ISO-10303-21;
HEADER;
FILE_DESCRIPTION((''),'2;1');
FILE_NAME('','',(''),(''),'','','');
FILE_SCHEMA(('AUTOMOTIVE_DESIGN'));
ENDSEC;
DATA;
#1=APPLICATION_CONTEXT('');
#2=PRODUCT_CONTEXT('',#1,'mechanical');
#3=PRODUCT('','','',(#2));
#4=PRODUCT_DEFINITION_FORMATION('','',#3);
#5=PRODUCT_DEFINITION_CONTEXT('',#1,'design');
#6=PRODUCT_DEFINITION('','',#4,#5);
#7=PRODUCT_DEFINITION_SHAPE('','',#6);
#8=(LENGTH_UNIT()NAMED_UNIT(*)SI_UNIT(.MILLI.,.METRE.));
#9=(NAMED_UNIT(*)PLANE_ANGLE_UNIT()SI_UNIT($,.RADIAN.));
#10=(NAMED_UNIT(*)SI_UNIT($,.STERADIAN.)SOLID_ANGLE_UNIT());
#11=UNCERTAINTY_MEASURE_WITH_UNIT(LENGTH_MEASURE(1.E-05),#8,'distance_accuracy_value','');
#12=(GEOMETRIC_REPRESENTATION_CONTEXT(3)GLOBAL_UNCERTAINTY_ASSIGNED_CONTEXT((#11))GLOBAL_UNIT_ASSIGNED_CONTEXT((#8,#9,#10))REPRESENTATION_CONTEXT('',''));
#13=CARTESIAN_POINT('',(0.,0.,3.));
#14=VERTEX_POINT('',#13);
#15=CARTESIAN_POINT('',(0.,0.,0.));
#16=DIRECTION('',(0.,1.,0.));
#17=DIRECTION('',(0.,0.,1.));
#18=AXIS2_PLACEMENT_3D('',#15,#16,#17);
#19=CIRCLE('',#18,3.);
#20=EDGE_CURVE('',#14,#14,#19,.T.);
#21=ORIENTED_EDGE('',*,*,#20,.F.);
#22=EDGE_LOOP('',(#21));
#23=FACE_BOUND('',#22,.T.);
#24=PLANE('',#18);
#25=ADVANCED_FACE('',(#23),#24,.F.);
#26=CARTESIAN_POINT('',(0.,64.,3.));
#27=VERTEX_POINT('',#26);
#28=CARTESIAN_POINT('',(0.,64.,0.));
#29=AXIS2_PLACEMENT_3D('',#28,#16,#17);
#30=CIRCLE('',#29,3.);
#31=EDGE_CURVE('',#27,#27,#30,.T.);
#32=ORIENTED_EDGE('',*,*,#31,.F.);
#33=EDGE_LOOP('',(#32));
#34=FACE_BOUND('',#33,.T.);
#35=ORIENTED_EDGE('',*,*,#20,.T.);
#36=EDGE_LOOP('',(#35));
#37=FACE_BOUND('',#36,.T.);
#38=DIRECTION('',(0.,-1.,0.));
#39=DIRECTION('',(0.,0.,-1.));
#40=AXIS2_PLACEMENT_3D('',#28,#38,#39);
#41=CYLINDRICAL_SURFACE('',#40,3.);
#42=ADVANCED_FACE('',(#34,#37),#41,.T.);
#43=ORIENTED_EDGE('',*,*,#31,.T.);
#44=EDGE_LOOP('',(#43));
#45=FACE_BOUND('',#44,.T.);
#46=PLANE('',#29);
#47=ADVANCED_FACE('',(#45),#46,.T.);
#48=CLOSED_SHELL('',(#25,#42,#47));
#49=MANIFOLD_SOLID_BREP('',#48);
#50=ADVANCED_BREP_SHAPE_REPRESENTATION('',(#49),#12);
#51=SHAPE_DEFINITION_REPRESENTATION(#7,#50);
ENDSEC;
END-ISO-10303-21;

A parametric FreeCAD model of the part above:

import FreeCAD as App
import Part
import Sketcher
from FreeCAD import Vector

doc = App.newDocument("Part")
body = doc.addObject("PartDesign::Body", "Body")

# Sketch on XZ plane
sketch1 = body.newObject("Sketcher::SketchObject", "Sketch")
sketch1.AttachmentSupport = (doc.getObject("XZ_Plane"), [""])
sketch1.MapMode = "FlatFace"
sketch1.addGeometry(Part.Circle(Vector(0, 0, 0), Vector(0, 0, 1), 3), False)
sketch1.addConstraint([
    Sketcher.Constraint("Coincident", 0, 3, -1, 1),
    Sketcher.Constraint("Diameter", 0, 6.0),
])
pad1 = body.newObject("PartDesign::Pad", "Pad")
pad1.Profile = sketch1
pad1.Length = 64
pad1.Reversed = True

doc.recompute()
